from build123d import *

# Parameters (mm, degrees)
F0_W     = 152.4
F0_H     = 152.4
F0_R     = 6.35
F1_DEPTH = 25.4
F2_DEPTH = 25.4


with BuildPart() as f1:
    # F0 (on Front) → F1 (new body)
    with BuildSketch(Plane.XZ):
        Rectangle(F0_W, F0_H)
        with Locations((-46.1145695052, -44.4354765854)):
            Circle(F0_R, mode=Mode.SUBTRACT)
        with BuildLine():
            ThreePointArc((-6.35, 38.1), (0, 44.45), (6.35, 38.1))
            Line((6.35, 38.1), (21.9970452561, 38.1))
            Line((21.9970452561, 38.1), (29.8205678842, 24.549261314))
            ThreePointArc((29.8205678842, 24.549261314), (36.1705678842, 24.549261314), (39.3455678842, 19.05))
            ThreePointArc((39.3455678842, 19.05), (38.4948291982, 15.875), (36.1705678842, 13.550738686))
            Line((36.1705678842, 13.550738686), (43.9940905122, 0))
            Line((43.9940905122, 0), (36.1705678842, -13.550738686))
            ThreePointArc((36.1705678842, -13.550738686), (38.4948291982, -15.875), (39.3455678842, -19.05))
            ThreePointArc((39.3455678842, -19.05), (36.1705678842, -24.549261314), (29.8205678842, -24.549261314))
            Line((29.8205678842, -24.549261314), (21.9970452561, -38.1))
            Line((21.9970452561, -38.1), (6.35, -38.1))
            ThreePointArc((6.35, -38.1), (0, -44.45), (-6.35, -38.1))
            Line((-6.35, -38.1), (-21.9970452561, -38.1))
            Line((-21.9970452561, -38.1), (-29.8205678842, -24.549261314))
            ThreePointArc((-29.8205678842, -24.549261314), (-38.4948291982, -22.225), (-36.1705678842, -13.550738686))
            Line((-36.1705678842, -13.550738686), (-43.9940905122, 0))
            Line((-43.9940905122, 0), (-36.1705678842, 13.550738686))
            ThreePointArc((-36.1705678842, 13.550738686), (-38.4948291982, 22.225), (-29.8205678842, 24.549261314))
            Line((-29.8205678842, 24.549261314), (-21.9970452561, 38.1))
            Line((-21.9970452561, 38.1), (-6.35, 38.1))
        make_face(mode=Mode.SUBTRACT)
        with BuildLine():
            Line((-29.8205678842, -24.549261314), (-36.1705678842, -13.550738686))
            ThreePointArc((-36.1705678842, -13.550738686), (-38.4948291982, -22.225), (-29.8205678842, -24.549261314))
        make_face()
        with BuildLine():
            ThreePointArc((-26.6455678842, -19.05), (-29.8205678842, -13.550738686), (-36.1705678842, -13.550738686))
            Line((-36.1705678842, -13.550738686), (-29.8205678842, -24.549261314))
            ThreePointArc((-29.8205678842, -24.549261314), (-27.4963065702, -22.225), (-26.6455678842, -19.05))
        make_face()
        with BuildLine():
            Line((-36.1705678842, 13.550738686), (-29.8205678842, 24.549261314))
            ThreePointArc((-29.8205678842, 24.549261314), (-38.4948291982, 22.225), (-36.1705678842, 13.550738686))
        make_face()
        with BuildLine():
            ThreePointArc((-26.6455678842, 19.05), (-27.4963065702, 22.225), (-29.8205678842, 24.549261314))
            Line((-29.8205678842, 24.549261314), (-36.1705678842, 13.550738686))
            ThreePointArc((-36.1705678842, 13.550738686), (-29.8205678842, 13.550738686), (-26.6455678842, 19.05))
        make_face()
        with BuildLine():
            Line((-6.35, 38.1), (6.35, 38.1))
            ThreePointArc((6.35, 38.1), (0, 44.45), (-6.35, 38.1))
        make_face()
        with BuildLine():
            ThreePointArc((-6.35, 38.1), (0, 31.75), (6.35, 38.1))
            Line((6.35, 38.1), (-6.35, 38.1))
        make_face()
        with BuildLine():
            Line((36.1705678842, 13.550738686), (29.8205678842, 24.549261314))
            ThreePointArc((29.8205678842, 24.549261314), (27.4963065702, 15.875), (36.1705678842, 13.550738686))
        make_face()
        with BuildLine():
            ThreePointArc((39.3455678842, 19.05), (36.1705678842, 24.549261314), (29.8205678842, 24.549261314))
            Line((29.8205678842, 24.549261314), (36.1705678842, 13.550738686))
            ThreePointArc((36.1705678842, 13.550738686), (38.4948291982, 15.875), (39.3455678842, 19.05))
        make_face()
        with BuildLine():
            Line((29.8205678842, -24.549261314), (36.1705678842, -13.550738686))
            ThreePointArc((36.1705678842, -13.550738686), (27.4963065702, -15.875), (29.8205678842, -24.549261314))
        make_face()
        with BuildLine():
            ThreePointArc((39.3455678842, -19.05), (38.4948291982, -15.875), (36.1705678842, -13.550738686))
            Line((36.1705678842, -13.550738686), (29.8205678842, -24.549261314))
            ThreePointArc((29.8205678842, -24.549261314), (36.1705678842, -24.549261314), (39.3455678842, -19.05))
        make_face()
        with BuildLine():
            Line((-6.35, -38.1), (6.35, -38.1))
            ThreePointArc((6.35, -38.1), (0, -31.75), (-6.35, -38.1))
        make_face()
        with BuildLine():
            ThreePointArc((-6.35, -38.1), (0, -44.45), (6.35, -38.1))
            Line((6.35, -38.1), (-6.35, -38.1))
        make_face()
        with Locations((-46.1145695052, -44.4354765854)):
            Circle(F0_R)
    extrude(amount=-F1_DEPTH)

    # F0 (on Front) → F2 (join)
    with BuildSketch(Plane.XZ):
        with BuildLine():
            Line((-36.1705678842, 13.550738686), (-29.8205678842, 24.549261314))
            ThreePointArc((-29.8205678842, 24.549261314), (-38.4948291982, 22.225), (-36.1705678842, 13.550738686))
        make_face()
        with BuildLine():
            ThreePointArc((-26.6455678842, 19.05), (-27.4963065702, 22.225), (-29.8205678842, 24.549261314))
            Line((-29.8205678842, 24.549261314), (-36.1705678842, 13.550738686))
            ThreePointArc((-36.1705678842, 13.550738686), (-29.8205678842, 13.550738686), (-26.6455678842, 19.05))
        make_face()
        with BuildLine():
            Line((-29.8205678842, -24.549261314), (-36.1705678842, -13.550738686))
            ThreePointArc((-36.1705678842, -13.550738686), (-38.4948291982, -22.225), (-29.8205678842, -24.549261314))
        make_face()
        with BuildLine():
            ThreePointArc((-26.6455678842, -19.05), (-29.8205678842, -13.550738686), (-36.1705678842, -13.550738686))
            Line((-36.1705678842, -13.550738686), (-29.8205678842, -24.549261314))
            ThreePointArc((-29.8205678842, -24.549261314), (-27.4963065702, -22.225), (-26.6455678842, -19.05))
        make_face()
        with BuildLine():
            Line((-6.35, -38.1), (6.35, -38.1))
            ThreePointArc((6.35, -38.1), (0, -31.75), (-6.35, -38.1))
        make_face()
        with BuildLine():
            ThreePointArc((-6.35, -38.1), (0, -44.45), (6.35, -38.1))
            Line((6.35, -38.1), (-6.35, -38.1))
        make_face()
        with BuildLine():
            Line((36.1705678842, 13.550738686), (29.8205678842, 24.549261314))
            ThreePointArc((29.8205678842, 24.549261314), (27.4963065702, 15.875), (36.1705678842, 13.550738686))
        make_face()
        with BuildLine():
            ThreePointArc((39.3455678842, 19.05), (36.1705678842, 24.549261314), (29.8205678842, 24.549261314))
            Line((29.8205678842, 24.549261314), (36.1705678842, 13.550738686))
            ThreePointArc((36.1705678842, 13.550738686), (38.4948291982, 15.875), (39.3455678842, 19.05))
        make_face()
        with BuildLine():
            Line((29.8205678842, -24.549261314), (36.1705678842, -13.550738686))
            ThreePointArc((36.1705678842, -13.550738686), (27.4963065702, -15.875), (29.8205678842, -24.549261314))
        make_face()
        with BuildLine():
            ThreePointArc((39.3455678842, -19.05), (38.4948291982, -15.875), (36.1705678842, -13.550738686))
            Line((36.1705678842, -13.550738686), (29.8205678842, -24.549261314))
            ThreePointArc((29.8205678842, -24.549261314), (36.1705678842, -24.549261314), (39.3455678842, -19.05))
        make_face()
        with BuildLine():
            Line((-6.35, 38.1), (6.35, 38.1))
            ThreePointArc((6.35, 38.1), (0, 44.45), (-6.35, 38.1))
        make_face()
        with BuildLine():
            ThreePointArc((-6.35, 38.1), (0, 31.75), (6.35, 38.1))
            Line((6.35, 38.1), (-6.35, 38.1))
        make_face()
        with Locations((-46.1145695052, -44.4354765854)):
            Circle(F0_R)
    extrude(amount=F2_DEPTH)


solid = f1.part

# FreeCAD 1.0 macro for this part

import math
import FreeCAD as App
import Part
import Sketcher

V = App.Vector
Q = App.Units.Quantity


def add_polygon(sketch, points):
    """Adds a closed chain of lines whose ends are joined by coincident constraints."""
    first, n = sketch.GeometryCount, len(points)
    for a, b in zip(points, points[1:] + points[:1]):
        sketch.addGeometry(Part.LineSegment(App.Vector(*a, 0), App.Vector(*b, 0)), False)
    for i in range(n):
        sketch.addConstraint(Sketcher.Constraint("Coincident", first + i, 2, first + (i + 1) % n, 1))

doc = App.newDocument("Part")
body = doc.addObject("PartDesign::Body", "Body")

# Sketch on XZ plane
sketch1 = body.newObject("Sketcher::SketchObject", "Sketch")
sketch1.AttachmentSupport = (doc.getObject("XZ_Plane"), [""])
sketch1.MapMode = "FlatFace"
add_polygon(sketch1, [(-76.2, 76.2), (-76.2, -76.2), (76.2, -76.2), (76.2, 76.2)])  # lines 0-3
sketch1.addGeometry(Part.LineSegment(V(-21.997045, 38.1, 0), V(-6.35, 38.1, 0)), False)  # 4
sketch1.addGeometry(Part.ArcOfCircle(Part.Circle(V(0, 38.1, 0), V(0, 0, 1), 6.35), math.radians(180), math.radians(360)), False)  # 5
sketch1.addGeometry(Part.LineSegment(V(6.35, 38.1, 0), V(21.997045, 38.1, 0)), False)  # 6
sketch1.addGeometry(Part.LineSegment(V(21.997045, 38.1, 0), V(29.820568, 24.549261, 0)), False)  # 7
sketch1.addGeometry(Part.ArcOfCircle(Part.Circle(V(32.995568, 19.05, 0), V(0, 0, 1), 6.35), math.radians(120), math.radians(300)), False)  # 8
sketch1.addGeometry(Part.LineSegment(V(36.170568, 13.550739, 0), V(43.994091, 0, 0)), False)  # 9
sketch1.addGeometry(Part.LineSegment(V(43.994091, 0, 0), V(36.170568, -13.550739, 0)), False)  # 10
sketch1.addGeometry(Part.ArcOfCircle(Part.Circle(V(32.995568, -19.05, 0), V(0, 0, 1), 6.35), math.radians(60), math.radians(240)), False)  # 11
sketch1.addGeometry(Part.LineSegment(V(29.820568, -24.549261, 0), V(21.997045, -38.1, 0)), False)  # 12
sketch1.addGeometry(Part.LineSegment(V(21.997045, -38.1, 0), V(6.35, -38.1, 0)), False)  # 13
sketch1.addGeometry(Part.ArcOfCircle(Part.Circle(V(0, -38.1, 0), V(0, 0, 1), 6.35), math.radians(0), math.radians(180)), False)  # 14
sketch1.addGeometry(Part.LineSegment(V(-6.35, -38.1, 0), V(-21.997045, -38.1, 0)), False)  # 15
sketch1.addGeometry(Part.LineSegment(V(-21.997045, -38.1, 0), V(-29.820568, -24.549261, 0)), False)  # 16
sketch1.addGeometry(Part.ArcOfCircle(Part.Circle(V(-32.995568, -19.05, 0), V(0, 0, 1), 6.35), math.radians(-60), math.radians(0)), False)  # 17
sketch1.addGeometry(Part.ArcOfCircle(Part.Circle(V(-32.995568, -19.05, 0), V(0, 0, 1), 6.35), math.radians(0), math.radians(120)), False)  # 18
sketch1.addGeometry(Part.LineSegment(V(-36.170568, -13.550739, 0), V(-43.994091, 0, 0)), False)  # 19
sketch1.addGeometry(Part.LineSegment(V(-43.994091, 0, 0), V(-36.170568, 13.550739, 0)), False)  # 20
sketch1.addGeometry(Part.ArcOfCircle(Part.Circle(V(-32.995568, 19.05, 0), V(0, 0, 1), 6.35), math.radians(-120), math.radians(0)), False)  # 21
sketch1.addGeometry(Part.ArcOfCircle(Part.Circle(V(-32.995568, 19.05, 0), V(0, 0, 1), 6.35), math.radians(0), math.radians(60)), False)  # 22
sketch1.addGeometry(Part.LineSegment(V(-29.820568, 24.549261, 0), V(-21.997045, 38.1, 0)), False)  # 23
sketch1.addConstraint([
    Sketcher.Constraint("Coincident", 4, 2, 5, 1),
    Sketcher.Constraint("Coincident", 5, 2, 6, 1),
    Sketcher.Constraint("Coincident", 6, 2, 7, 1),
    Sketcher.Constraint("Coincident", 7, 2, 8, 1),
    Sketcher.Constraint("Coincident", 8, 2, 9, 1),
    Sketcher.Constraint("Coincident", 9, 2, 10, 1),
    Sketcher.Constraint("Coincident", 10, 2, 11, 1),
    Sketcher.Constraint("Coincident", 11, 2, 12, 1),
    Sketcher.Constraint("Coincident", 12, 2, 13, 1),
    Sketcher.Constraint("Coincident", 13, 2, 14, 1),
    Sketcher.Constraint("Coincident", 14, 2, 15, 1),
    Sketcher.Constraint("Coincident", 15, 2, 16, 1),
    Sketcher.Constraint("Coincident", 16, 2, 17, 1),
    Sketcher.Constraint("Tangent", 17, 2, 18, 1),
    Sketcher.Constraint("Coincident", 18, 2, 19, 1),
    Sketcher.Constraint("Coincident", 19, 2, 20, 1),
    Sketcher.Constraint("Coincident", 20, 2, 21, 1),
    Sketcher.Constraint("Tangent", 21, 2, 22, 1),
    Sketcher.Constraint("Coincident", 22, 2, 23, 1),
    Sketcher.Constraint("Coincident", 23, 2, 4, 1),
    Sketcher.Constraint("Vertical", 0),
    Sketcher.Constraint("Horizontal", 1),
    Sketcher.Constraint("Vertical", 2),
    Sketcher.Constraint("Horizontal", 3),
    Sketcher.Constraint("Horizontal", 4),
    Sketcher.Constraint("Horizontal", 6),
    Sketcher.Constraint("Horizontal", 13),
    Sketcher.Constraint("Horizontal", 15),
    Sketcher.Constraint("Equal", 5, 8),
    Sketcher.Constraint("Equal", 8, 11),
    Sketcher.Constraint("Equal", 11, 14),
    Sketcher.Constraint("Equal", 14, 17),
    Sketcher.Constraint("Equal", 17, 18),
    Sketcher.Constraint("Equal", 18, 21),
    Sketcher.Constraint("Equal", 21, 22),
    Sketcher.Constraint("Symmetric", 5, 3, 14, 3, -1, 1),
    Sketcher.Constraint("Symmetric", 8, 3, 17, 3, -1, 1),
    Sketcher.Constraint("Symmetric", 11, 3, 21, 3, -1, 1),
    Sketcher.Constraint("Symmetric", 0, 2, 2, 2, -1, 1),
    Sketcher.Constraint("Symmetric", 6, 2, 15, 2, -1, 1),
    Sketcher.Constraint("Symmetric", 9, 2, 19, 2, -1, 1),
    Sketcher.Constraint("Symmetric", 12, 2, 23, 2, -1, 1),
    Sketcher.Constraint("Symmetric", 11, 3, 17, 3, -2),
    Sketcher.Constraint("Symmetric", 4, 2, 5, 2, -2),
    Sketcher.Constraint("PointOnObject", 9, 2, -1),
    Sketcher.Constraint("Parallel", 7, 9),
    Sketcher.Constraint("Parallel", 10, 12),
    Sketcher.Constraint("Parallel", 9, 16),
    Sketcher.Constraint("Parallel", 16, 19),
    Sketcher.Constraint("Parallel", 12, 20),
    Sketcher.Constraint("Parallel", 20, 23),
    Sketcher.Constraint("Horizontal", 5, 3, 4, 2),
    Sketcher.Constraint("Horizontal", 11, 2, 16, 2),
    Sketcher.Constraint("Horizontal", 18, 3, 17, 2),
    Sketcher.Constraint("Horizontal", 10, 2, 18, 2),
    Sketcher.Constraint("Horizontal", 22, 3, 21, 2),
    Sketcher.Constraint("Equal", 3, 0),
    Sketcher.Constraint("Equal", 7, 9),
    Sketcher.Constraint("DistanceX", 1, 1, 1, 2, Q("6 in")),
    Sketcher.Constraint("Radius", 5, Q("0.25 in")),
    Sketcher.Constraint("Angle", 7, Q("-60 deg")),
    Sketcher.Constraint("DistanceY", 14, 3, 5, 3, Q("3 in")),
    Sketcher.Constraint("DistanceY", 11, 3, 8, 3, Q("1.5 in")),
    Sketcher.Constraint("DistanceX", 7, 2, 8, 2, Q("0.25 in")),
    Sketcher.Constraint("DistanceX", 4, 1, 4, 2, Q("15.647045 mm")),
])
pad1 = body.newObject("PartDesign::Pad", "Pad")
pad1.Profile = sketch1
pad1.Length = Q("1 in")
pad1.Reversed = True

# Sketch on XZ plane
sketch2 = body.newObject("Sketcher::SketchObject", "Sketch001")
sketch2.AttachmentSupport = (doc.getObject("XZ_Plane"), [""])
sketch2.MapMode = "FlatFace"
sketch2.addGeometry([
    Part.ArcOfCircle(Part.Circle(V(-32.995568, 19.05, 0), V(0, 0, 1), 6.35), math.radians(60), math.radians(240)),  # 0
    Part.ArcOfCircle(Part.Circle(V(-32.995568, 19.05, 0), V(0, 0, 1), 6.35), math.radians(-120), math.radians(0)),  # 1
    Part.ArcOfCircle(Part.Circle(V(-32.995568, 19.05, 0), V(0, 0, 1), 6.35), math.radians(0), math.radians(60)),  # 2
    Part.ArcOfCircle(Part.Circle(V(-32.995568, -19.05, 0), V(0, 0, 1), 6.35), math.radians(120), math.radians(300)),  # 3
    Part.ArcOfCircle(Part.Circle(V(-32.995568, -19.05, 0), V(0, 0, 1), 6.35), math.radians(-60), math.radians(0)),  # 4
    Part.ArcOfCircle(Part.Circle(V(-32.995568, -19.05, 0), V(0, 0, 1), 6.35), math.radians(0), math.radians(120)),  # 5
    Part.Circle(V(0, -38.1, 0), V(0, 0, 1), 6.35),  # 6
    Part.ArcOfCircle(Part.Circle(V(32.995568, 19.05, 0), V(0, 0, 1), 6.35), math.radians(120), math.radians(300)),  # 7
    Part.ArcOfCircle(Part.Circle(V(32.995568, 19.05, 0), V(0, 0, 1), 6.35), math.radians(-60), math.radians(0)),  # 8
    Part.ArcOfCircle(Part.Circle(V(32.995568, 19.05, 0), V(0, 0, 1), 6.35), math.radians(0), math.radians(120)),  # 9
    Part.ArcOfCircle(Part.Circle(V(32.995568, -19.05, 0), V(0, 0, 1), 6.35), math.radians(60), math.radians(240)),  # 10
    Part.ArcOfCircle(Part.Circle(V(32.995568, -19.05, 0), V(0, 0, 1), 6.35), math.radians(-120), math.radians(0)),  # 11
    Part.ArcOfCircle(Part.Circle(V(32.995568, -19.05, 0), V(0, 0, 1), 6.35), math.radians(0), math.radians(60)),  # 12
    Part.Circle(V(0, 38.1, 0), V(0, 0, 1), 6.35),  # 13
    Part.Circle(V(-46.11457, -44.435477, 0), V(0, 0, 1), 6.35),  # 14
], False)
sketch2.addConstraint([
    Sketcher.Constraint("Tangent", 0, 2, 1, 1),
    Sketcher.Constraint("Tangent", 1, 2, 2, 1),
    Sketcher.Constraint("Tangent", 2, 2, 0, 1),
    Sketcher.Constraint("Tangent", 3, 2, 4, 1),
    Sketcher.Constraint("Tangent", 4, 2, 5, 1),
    Sketcher.Constraint("Tangent", 5, 2, 3, 1),
    Sketcher.Constraint("Tangent", 7, 2, 8, 1),
    Sketcher.Constraint("Tangent", 8, 2, 9, 1),
    Sketcher.Constraint("Tangent", 9, 2, 7, 1),
    Sketcher.Constraint("Tangent", 10, 2, 11, 1),
    Sketcher.Constraint("Tangent", 11, 2, 12, 1),
    Sketcher.Constraint("Tangent", 12, 2, 10, 1),
    Sketcher.Constraint("Equal", 2, 3),
    Sketcher.Constraint("Equal", 5, 6),
    Sketcher.Constraint("Equal", 6, 7),
    Sketcher.Constraint("Equal", 9, 10),
    Sketcher.Constraint("Equal", 12, 13),
    Sketcher.Constraint("Equal", 13, 14),
    Sketcher.Constraint("Symmetric", 3, 3, 7, 3, -1, 1),
    Sketcher.Constraint("Symmetric", 0, 3, 10, 3, -1, 1),
    Sketcher.Constraint("Symmetric", 6, 3, 13, 3, -1, 1),
    Sketcher.Constraint("Symmetric", 0, 3, 7, 3, -2),
    Sketcher.Constraint("PointOnObject", 6, 3, -2),
    Sketcher.Constraint("Horizontal", 9, 3, 1, 2),
    Sketcher.Constraint("Horizontal", 12, 3, 4, 2),
    Sketcher.Constraint("Horizontal", 0, 2, 7, 2),
    Sketcher.Constraint("Horizontal", 1, 2, 8, 2),
    Sketcher.Constraint("Horizontal", 2, 2, 9, 2),
    Sketcher.Constraint("Horizontal", 3, 2, 10, 2),
    Sketcher.Constraint("Horizontal", 4, 2, 11, 2),
    Sketcher.Constraint("Horizontal", 5, 2, 12, 2),
    Sketcher.Constraint("Vertical", 2, 2, 3, 2),
    Sketcher.Constraint("Vertical", 0, 2, 5, 2),
    Sketcher.Constraint("Diameter", 6, Q("0.5 in")),
    Sketcher.Constraint("DistanceY", 6, 3, -1, 1, Q("1.5 in")),
    Sketcher.Constraint("DistanceY", 3, 3, 0, 3, Q("1.5 in")),
    Sketcher.Constraint("DistanceY", 10, 2, 7, 2, Q("1.5 in")),
    Sketcher.Constraint("DistanceX", 0, 2, 2, 2, Q("0.25 in")),
    Sketcher.Constraint("DistanceX", 14, 3, 3, 3, Q("13.119002 mm")),
    Sketcher.Constraint("DistanceX", 14, 3, -1, 1, Q("46.11457 mm")),
    Sketcher.Constraint("DistanceY", 14, 3, -1, 1, Q("44.435477 mm")),
])
pad2 = body.newObject("PartDesign::Pad", "Pad001")
pad2.Profile = sketch2
pad2.Length = Q("1 in")

doc.recompute()
